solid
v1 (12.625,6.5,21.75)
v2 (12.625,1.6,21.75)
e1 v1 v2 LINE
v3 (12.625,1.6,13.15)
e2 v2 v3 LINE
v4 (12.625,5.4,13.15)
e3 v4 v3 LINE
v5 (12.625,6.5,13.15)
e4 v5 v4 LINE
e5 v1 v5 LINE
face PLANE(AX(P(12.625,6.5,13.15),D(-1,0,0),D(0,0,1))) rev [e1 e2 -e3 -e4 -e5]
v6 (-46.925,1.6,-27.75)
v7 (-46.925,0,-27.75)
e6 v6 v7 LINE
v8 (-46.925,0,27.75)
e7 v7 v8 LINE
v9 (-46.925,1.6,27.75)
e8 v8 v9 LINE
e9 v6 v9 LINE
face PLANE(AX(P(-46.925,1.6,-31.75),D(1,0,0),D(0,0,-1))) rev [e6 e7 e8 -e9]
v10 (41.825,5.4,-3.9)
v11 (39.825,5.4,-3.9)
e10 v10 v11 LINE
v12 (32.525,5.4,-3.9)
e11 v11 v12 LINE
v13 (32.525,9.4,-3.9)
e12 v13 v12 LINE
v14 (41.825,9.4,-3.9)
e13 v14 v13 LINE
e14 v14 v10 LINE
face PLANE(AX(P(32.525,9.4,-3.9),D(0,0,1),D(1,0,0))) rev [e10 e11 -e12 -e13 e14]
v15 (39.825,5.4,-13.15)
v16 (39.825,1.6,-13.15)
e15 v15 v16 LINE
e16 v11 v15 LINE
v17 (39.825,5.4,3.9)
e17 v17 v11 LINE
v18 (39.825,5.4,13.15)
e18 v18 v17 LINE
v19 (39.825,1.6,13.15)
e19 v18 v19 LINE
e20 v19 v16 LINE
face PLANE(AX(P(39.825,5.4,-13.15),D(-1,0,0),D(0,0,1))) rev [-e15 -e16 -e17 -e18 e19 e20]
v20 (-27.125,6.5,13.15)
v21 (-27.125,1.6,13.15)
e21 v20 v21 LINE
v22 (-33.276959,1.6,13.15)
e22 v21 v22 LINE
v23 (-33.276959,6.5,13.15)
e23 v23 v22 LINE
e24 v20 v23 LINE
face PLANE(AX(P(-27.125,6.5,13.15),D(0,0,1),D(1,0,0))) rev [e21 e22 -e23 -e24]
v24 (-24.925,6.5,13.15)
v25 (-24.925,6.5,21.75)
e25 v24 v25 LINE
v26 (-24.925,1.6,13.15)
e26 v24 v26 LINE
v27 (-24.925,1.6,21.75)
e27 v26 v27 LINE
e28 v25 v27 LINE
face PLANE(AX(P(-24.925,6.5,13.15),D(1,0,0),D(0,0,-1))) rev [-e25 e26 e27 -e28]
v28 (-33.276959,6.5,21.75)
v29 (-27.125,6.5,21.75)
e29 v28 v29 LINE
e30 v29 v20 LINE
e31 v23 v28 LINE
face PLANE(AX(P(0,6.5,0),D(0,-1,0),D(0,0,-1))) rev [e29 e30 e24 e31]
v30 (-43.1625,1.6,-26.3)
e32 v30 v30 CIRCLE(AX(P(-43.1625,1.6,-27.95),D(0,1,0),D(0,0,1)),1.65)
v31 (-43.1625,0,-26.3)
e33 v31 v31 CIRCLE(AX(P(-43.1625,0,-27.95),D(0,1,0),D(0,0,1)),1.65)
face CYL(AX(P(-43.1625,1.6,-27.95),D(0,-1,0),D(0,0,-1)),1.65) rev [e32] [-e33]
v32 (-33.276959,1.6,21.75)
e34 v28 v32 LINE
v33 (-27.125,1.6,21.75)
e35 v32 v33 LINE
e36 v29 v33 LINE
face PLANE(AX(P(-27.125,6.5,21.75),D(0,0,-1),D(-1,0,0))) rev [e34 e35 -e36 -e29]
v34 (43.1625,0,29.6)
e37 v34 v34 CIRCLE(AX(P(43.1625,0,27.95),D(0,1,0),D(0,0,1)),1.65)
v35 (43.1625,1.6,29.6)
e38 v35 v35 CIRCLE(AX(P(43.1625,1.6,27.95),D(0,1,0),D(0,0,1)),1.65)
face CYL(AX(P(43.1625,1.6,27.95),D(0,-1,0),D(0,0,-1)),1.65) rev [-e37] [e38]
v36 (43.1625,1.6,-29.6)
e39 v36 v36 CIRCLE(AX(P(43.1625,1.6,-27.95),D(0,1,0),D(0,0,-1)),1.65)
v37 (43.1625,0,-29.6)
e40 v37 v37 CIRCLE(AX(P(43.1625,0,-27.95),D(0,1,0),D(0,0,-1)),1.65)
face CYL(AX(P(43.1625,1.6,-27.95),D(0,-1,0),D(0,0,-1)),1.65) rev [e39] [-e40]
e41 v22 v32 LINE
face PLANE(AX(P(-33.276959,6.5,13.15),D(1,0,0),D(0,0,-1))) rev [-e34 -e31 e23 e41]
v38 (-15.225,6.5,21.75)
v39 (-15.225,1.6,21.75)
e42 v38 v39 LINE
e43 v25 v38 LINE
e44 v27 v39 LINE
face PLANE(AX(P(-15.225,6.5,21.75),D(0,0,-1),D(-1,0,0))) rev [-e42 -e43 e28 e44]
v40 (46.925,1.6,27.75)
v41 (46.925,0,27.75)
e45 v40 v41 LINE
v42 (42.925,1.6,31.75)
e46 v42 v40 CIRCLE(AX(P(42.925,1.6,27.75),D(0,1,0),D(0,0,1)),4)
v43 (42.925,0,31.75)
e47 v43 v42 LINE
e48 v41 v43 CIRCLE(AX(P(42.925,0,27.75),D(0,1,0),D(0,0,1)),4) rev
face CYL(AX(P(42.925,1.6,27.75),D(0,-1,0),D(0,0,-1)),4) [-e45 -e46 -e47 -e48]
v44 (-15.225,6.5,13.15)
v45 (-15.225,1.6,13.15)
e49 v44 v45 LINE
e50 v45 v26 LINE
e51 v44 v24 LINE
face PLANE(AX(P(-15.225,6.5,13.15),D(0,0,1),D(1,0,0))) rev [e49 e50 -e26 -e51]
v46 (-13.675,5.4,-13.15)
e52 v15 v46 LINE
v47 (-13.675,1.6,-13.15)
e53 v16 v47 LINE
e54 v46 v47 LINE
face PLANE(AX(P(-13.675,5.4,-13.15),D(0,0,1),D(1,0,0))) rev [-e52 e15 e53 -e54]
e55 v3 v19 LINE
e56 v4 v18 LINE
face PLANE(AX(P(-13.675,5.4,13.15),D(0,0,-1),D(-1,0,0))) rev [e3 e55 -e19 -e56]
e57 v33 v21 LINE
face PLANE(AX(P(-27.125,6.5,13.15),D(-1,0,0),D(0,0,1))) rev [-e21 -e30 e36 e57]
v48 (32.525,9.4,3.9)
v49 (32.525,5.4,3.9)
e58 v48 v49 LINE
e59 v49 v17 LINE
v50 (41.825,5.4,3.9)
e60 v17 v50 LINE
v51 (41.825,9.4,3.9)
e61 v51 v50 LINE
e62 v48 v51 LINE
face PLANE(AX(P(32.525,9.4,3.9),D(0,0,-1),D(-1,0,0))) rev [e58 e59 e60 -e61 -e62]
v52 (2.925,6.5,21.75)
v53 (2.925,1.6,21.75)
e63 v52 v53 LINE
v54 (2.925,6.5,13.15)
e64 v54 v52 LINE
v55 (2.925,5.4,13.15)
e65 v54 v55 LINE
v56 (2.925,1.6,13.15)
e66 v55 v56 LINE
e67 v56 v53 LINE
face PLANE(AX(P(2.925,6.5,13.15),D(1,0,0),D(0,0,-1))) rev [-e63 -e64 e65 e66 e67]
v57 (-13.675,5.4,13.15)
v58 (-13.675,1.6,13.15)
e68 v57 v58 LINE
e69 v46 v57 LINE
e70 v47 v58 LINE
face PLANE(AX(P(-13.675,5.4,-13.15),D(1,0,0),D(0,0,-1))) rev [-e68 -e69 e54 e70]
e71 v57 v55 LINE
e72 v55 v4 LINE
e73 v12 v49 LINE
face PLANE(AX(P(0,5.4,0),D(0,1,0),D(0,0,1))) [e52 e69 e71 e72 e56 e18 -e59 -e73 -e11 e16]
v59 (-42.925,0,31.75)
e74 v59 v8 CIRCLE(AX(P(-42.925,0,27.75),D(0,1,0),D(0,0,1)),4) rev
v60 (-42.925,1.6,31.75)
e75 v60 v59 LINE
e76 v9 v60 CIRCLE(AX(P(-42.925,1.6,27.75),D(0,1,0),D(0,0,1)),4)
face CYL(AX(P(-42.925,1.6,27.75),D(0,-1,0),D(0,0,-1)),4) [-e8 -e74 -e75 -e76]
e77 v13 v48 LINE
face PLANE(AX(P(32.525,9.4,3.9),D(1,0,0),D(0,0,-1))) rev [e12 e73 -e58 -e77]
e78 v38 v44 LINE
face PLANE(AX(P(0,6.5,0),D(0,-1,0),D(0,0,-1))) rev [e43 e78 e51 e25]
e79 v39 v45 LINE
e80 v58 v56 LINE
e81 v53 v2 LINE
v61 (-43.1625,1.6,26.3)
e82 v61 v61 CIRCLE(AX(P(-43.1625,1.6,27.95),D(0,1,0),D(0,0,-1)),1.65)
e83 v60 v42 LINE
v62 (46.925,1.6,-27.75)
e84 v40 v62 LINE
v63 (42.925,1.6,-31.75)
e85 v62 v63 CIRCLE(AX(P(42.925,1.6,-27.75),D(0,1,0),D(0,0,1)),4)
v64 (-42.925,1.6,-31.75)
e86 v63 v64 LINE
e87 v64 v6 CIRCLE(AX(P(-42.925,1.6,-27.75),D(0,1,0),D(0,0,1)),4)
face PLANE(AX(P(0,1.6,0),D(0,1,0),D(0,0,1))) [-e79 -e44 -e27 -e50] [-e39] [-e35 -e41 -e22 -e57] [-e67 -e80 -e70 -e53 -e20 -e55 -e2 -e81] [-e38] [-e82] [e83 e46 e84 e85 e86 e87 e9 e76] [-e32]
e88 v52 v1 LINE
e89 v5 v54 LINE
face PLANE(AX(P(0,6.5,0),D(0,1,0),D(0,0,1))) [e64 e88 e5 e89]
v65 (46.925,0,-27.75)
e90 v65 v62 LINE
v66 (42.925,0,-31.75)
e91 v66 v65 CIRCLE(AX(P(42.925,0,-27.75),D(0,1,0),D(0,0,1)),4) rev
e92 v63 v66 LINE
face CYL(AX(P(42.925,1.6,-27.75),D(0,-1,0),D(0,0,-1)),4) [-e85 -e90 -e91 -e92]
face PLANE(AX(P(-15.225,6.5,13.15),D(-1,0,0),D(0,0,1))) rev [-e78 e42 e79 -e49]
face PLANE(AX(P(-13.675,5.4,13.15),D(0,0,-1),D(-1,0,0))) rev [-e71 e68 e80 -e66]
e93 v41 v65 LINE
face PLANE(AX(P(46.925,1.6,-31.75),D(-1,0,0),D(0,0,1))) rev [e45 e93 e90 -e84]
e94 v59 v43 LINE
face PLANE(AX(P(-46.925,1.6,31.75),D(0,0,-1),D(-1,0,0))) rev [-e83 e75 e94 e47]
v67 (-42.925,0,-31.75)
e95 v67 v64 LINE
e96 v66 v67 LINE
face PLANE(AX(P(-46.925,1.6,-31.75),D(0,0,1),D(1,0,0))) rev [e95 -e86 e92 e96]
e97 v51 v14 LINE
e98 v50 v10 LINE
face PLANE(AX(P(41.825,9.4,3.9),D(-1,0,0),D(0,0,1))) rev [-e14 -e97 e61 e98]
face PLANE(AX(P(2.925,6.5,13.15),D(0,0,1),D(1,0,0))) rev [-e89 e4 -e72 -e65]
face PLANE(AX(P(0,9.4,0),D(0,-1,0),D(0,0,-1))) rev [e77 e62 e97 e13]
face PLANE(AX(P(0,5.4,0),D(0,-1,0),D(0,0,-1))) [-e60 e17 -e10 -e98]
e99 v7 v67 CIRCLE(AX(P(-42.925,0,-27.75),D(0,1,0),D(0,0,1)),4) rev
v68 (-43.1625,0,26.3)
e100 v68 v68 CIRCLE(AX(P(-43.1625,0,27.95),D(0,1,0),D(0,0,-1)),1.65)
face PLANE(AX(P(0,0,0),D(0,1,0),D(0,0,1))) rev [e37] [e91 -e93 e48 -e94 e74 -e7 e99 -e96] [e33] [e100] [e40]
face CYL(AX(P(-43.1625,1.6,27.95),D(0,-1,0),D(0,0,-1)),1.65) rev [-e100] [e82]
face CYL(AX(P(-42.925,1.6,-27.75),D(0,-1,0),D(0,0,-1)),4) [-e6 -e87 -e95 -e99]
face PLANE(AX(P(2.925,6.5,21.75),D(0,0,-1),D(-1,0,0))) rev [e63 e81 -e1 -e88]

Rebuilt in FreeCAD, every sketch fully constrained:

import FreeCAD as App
import Part
import Sketcher

V = App.Vector
Q = App.Units.Quantity


def edges_at(feature, points):
    """Names of the edges that pass closest to the given points."""
    edges = feature.Shape.Edges
    near = lambda p: min(range(len(edges)), key=lambda i: edges[i].distToShape(Part.Vertex(*p))[0])
    return sorted({f"Edge{near(p) + 1}" for p in points})


def add_polygon(sketch, points):
    """Adds a closed chain of lines whose ends are joined by coincident constraints."""
    first, n = sketch.GeometryCount, len(points)
    for a, b in zip(points, points[1:] + points[:1]):
        sketch.addGeometry(Part.LineSegment(App.Vector(*a, 0), App.Vector(*b, 0)), False)
    for i in range(n):
        sketch.addConstraint(Sketcher.Constraint("Coincident", first + i, 2, first + (i + 1) % n, 1))

doc = App.newDocument("Part")
body = doc.addObject("PartDesign::Body", "Body")

# Sketch on XZ plane
sketch1 = body.newObject("Sketcher::SketchObject", "Sketch")
sketch1.AttachmentSupport = (doc.getObject("XZ_Plane"), [""])
sketch1.MapMode = "FlatFace"
add_polygon(sketch1, [(-46.9, -31.8), (-46.9, 31.8), (46.9, 31.8), (46.9, -31.8)])  # lines 0-3
sketch1.addGeometry(Part.Circle(V(-43.2, 27.9, 0), V(0, 0, 1), 1.6), False)  # 4
sketch1.addGeometry(Part.Circle(V(43.2, 27.9, 0), V(0, 0, 1), 1.6), False)  # 5
sketch1.addGeometry(Part.Circle(V(-43.2, -27.9, 0), V(0, 0, 1), 1.6), False)  # 6
sketch1.addGeometry(Part.Circle(V(43.2, -27.9, 0), V(0, 0, 1), 1.6), False)  # 7
sketch1.addConstraint([
    Sketcher.Constraint("Vertical", 0),
    Sketcher.Constraint("Horizontal", 1),
    Sketcher.Constraint("Vertical", 2),
    Sketcher.Constraint("Horizontal", 3),
    Sketcher.Constraint("Equal", 4, 5),
    Sketcher.Constraint("Equal", 5, 6),
    Sketcher.Constraint("Equal", 6, 7),
    Sketcher.Constraint("Symmetric", 5, 3, 6, 3, -1, 1),
    Sketcher.Constraint("Symmetric", 4, 3, 7, 3, -1, 1),
    Sketcher.Constraint("Symmetric", 0, 2, 2, 2, -1, 1),
    Sketcher.Constraint("Symmetric", 4, 3, 5, 3, -2),
    Sketcher.Constraint("Diameter", 4, Q("3.3 mm")),
    Sketcher.Constraint("DistanceY", 0, 1, 0, 2, Q("63.5 mm")),
    Sketcher.Constraint("DistanceX", 1, 1, 1, 2, Q("93.85 mm")),
    Sketcher.Constraint("DistanceY", 6, 3, 4, 3, Q("55.9 mm")),
    Sketcher.Constraint("DistanceX", 4, 3, 5, 3, Q("86.325 mm")),
])
pad1 = body.newObject("PartDesign::Pad", "Pad")
pad1.Profile = sketch1
pad1.Length = 1.6
pad1.Reversed = True
doc.recompute()

fillet = body.newObject("PartDesign::Fillet", "Fillet")
fillet.Base = (pad1, edges_at(pad1, [
    (46.925, 0.8, 31.75),
    (-46.925, 0.8, 31.75),
    (-46.925, 0.8, -31.75),
    (46.925, 0.8, -31.75),
]))
fillet.Radius = 4

# Sketch on XZ plane
sketch2 = body.newObject("Sketcher::SketchObject", "Sketch001")
sketch2.AttachmentSupport = (doc.getObject("XZ_Plane"), [""])
sketch2.MapMode = "FlatFace"
sketch2.AttachmentOffset = App.Placement(V(0, 0, -1.6), App.Rotation())
add_polygon(sketch2, [(-14, -13), (-14, 13), (40, 13), (40, -13)])  # lines 0-3
sketch2.addConstraint([
    Sketcher.Constraint("Vertical", 0),
    Sketcher.Constraint("Horizontal", 1),
    Sketcher.Constraint("Vertical", 2),
    Sketcher.Constraint("Horizontal", 3),
    Sketcher.Constraint("DistanceX", 1, 1, 1, 2, Q("53.5 mm")),
    Sketcher.Constraint("DistanceY", 0, 1, 0, 2, Q("26.3 mm")),
    Sketcher.Constraint("DistanceY", -1, 1, 0, 2, Q("13.15 mm")),
    Sketcher.Constraint("DistanceX", 0, 2, -1, 1, Q("13.675 mm")),
])
pad2 = body.newObject("PartDesign::Pad", "Pad001")
pad2.Profile = sketch2
pad2.Length = 3.8
pad2.Reversed = True

# Sketch on XZ plane
sketch3 = body.newObject("Sketcher::SketchObject", "Sketch002")
sketch3.AttachmentSupport = (doc.getObject("XZ_Plane"), [""])
sketch3.MapMode = "FlatFace"
sketch3.AttachmentOffset = App.Placement(V(0, 0, -5.4), App.Rotation())
add_polygon(sketch3, [(33, -4), (33, 4), (42, 4), (42, -4)])  # lines 0-3
sketch3.addConstraint([
    Sketcher.Constraint("Vertical", 0),
    Sketcher.Constraint("Horizontal", 1),
    Sketcher.Constraint("Vertical", 2),
    Sketcher.Constraint("Horizontal", 3),
    Sketcher.Constraint("DistanceX", 1, 1, 1, 2, Q("9.3 mm")),
    Sketcher.Constraint("DistanceY", 0, 1, 0, 2, Q("7.8 mm")),
    Sketcher.Constraint("DistanceY", -1, 1, 0, 2, Q("3.9 mm")),
    Sketcher.Constraint("DistanceX", -1, 1, 0, 2, Q("32.525 mm")),
])
pad3 = body.newObject("PartDesign::Pad", "Pad002")
pad3.Profile = sketch3
pad3.Length = 4
pad3.Reversed = True

# Sketch on XZ plane
sketch4 = body.newObject("Sketcher::SketchObject", "Sketch003")
sketch4.AttachmentSupport = (doc.getObject("XZ_Plane"), [""])
sketch4.MapMode = "FlatFace"
sketch4.AttachmentOffset = App.Placement(V(0, 0, -1.6), App.Rotation())
add_polygon(sketch4, [(3, 13), (3, 22), (13, 22), (13, 13)])  # lines 0-3
add_polygon(sketch4, [(-25, 13), (-25, 22), (-15, 22), (-15, 13)])  # lines 4-7
add_polygon(sketch4, [(-33, 13), (-33, 22), (-27, 22), (-27, 13)])  # lines 8-11
sketch4.addConstraint([
    Sketcher.Constraint("Vertical", 0),
    Sketcher.Constraint("Horizontal", 1),
    Sketcher.Constraint("Vertical", 2),
    Sketcher.Constraint("Horizontal", 3),
    Sketcher.Constraint("Vertical", 4),
    Sketcher.Constraint("Horizontal", 5),
    Sketcher.Constraint("Vertical", 6),
    Sketcher.Constraint("Horizontal", 7),
    Sketcher.Constraint("Vertical", 8),
    Sketcher.Constraint("Horizontal", 9),
    Sketcher.Constraint("Vertical", 10),
    Sketcher.Constraint("Horizontal", 11),
    Sketcher.Constraint("Horizontal", 1, 2, 4, 2),
    Sketcher.Constraint("Horizontal", 3, 2, 6, 2),
    Sketcher.Constraint("Horizontal", 5, 2, 8, 2),
    Sketcher.Constraint("Horizontal", 7, 2, 10, 2),
    Sketcher.Constraint("Equal", 3, 5),
    Sketcher.Constraint("DistanceX", 1, 1, 1, 2, Q("9.7 mm")),
    Sketcher.Constraint("DistanceY", 0, 1, 0, 2, Q("8.6 mm")),
    Sketcher.Constraint("DistanceX", 9, 2, 4, 2, Q("2.2 mm")),
    Sketcher.Constraint("DistanceY", -1, 1, 0, 2, Q("21.75 mm")),
    Sketcher.Constraint("DistanceX", 4, 2, 0, 2, Q("27.85 mm")),
    Sketcher.Constraint("DistanceX", -1, 1, 0, 2, Q("2.925 mm")),
    Sketcher.Constraint("DistanceX", 9, 1, 9, 2, Q("6.151959 mm")),
])
pad4 = body.newObject("PartDesign::Pad", "Pad003")
pad4.Profile = sketch4
pad4.Length = 4.9
pad4.Reversed = True

doc.recompute()
